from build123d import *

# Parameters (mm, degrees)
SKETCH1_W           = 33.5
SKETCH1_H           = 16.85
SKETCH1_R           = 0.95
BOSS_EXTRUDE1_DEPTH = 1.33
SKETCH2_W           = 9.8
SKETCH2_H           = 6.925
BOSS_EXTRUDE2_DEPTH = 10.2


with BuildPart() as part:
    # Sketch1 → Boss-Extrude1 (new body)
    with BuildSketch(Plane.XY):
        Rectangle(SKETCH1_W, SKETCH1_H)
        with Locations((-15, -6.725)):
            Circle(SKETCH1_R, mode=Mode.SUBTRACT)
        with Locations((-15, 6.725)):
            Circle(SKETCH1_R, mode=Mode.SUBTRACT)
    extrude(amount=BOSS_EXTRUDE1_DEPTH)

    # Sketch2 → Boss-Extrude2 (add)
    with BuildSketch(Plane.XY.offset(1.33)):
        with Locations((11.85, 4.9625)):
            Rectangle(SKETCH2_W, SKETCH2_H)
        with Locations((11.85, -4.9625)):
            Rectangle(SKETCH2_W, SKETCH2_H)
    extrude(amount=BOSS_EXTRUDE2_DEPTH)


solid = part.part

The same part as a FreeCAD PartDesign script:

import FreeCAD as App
import Part
import Sketcher

doc = App.newDocument("Part")
body = doc.addObject("PartDesign::Body", "Body")

sketch1 = body.newObject("Sketcher::SketchObject", "Sketch")
sketch1.AttachmentSupport = (doc.getObject("XY_Plane"), [""])
sketch1.MapMode = "FlatFace"
sketch1.addGeometry(Part.LineSegment(App.Vector(-16.75, 8.425, 0), App.Vector(-16.75, -8.425, 0)), False)
sketch1.addGeometry(Part.LineSegment(App.Vector(-16.75, -8.425, 0), App.Vector(16.75, -8.425, 0)), False)
sketch1.addGeometry(Part.LineSegment(App.Vector(16.75, -8.425, 0), App.Vector(16.75, 8.425, 0)), False)
sketch1.addGeometry(Part.LineSegment(App.Vector(16.75, 8.425, 0), App.Vector(-16.75, 8.425, 0)), False)
sketch1.addGeometry(Part.Circle(App.Vector(-15, -6.725, 0), App.Vector(0, 0, 1), 0.95), False)
sketch1.addGeometry(Part.Circle(App.Vector(-15, 6.725, 0), App.Vector(0, 0, 1), 0.95), False)
sketch1.addConstraint(Sketcher.Constraint("Coincident", 0, 2, 1, 1))
sketch1.addConstraint(Sketcher.Constraint("Coincident", 1, 2, 2, 1))
sketch1.addConstraint(Sketcher.Constraint("Coincident", 2, 2, 3, 1))
sketch1.addConstraint(Sketcher.Constraint("Coincident", 3, 2, 0, 1))
sketch1.addConstraint(Sketcher.Constraint("Vertical", 0))
sketch1.addConstraint(Sketcher.Constraint("Horizontal", 1))
sketch1.addConstraint(Sketcher.Constraint("Vertical", 2))
sketch1.addConstraint(Sketcher.Constraint("Horizontal", 3))
sketch1.addConstraint(Sketcher.Constraint("Equal", 4, 5))
sketch1.addConstraint(Sketcher.Constraint("Symmetric", 0, 2, 2, 2, -1, 1))
sketch1.addConstraint(Sketcher.Constraint("Symmetric", 4, 3, 5, 3, -1))
sketch1.addConstraint(Sketcher.Constraint("Diameter", 4, 1.9))
sketch1.addConstraint(Sketcher.Constraint("DistanceX", 1, 1, 1, 2, 33.5))
sketch1.addConstraint(Sketcher.Constraint("DistanceX", 4, 3, -1, 1, 15.0))
sketch1.addConstraint(Sketcher.Constraint("DistanceY", 0, 2, 0, 1, 16.85))
sketch1.addConstraint(Sketcher.Constraint("DistanceY", 0, 2, 4, 3, 1.7))
pad1 = body.newObject("PartDesign::Pad", "Pad")
pad1.Profile = sketch1
pad1.Length = 1.33

sketch2 = body.newObject("Sketcher::SketchObject", "Sketch001")
sketch2.AttachmentSupport = (doc.getObject("XY_Plane"), [""])
sketch2.MapMode = "FlatFace"
sketch2.AttachmentOffset = App.Placement(App.Vector(0, 0, 1.33), App.Rotation())
sketch2.addGeometry(Part.LineSegment(App.Vector(6.95, 8.425, 0), App.Vector(6.95, 1.5, 0)), False)
sketch2.addGeometry(Part.LineSegment(App.Vector(6.95, 1.5, 0), App.Vector(16.75, 1.5, 0)), False)
sketch2.addGeometry(Part.LineSegment(App.Vector(16.75, 1.5, 0), App.Vector(16.75, 8.425, 0)), False)
sketch2.addGeometry(Part.LineSegment(App.Vector(16.75, 8.425, 0), App.Vector(6.95, 8.425, 0)), False)
sketch2.addGeometry(Part.LineSegment(App.Vector(6.95, -1.5, 0), App.Vector(6.95, -8.425, 0)), False)
sketch2.addGeometry(Part.LineSegment(App.Vector(6.95, -8.425, 0), App.Vector(16.75, -8.425, 0)), False)
sketch2.addGeometry(Part.LineSegment(App.Vector(16.75, -8.425, 0), App.Vector(16.75, -1.5, 0)), False)
sketch2.addGeometry(Part.LineSegment(App.Vector(16.75, -1.5, 0), App.Vector(6.95, -1.5, 0)), False)
sketch2.addConstraint(Sketcher.Constraint("Coincident", 0, 2, 1, 1))
sketch2.addConstraint(Sketcher.Constraint("Coincident", 1, 2, 2, 1))
sketch2.addConstraint(Sketcher.Constraint("Coincident", 2, 2, 3, 1))
sketch2.addConstraint(Sketcher.Constraint("Coincident", 3, 2, 0, 1))
sketch2.addConstraint(Sketcher.Constraint("Coincident", 4, 2, 5, 1))
sketch2.addConstraint(Sketcher.Constraint("Coincident", 5, 2, 6, 1))
sketch2.addConstraint(Sketcher.Constraint("Coincident", 6, 2, 7, 1))
sketch2.addConstraint(Sketcher.Constraint("Coincident", 7, 2, 4, 1))
sketch2.addConstraint(Sketcher.Constraint("Vertical", 0))
sketch2.addConstraint(Sketcher.Constraint("Horizontal", 1))
sketch2.addConstraint(Sketcher.Constraint("Vertical", 2))
sketch2.addConstraint(Sketcher.Constraint("Horizontal", 3))
sketch2.addConstraint(Sketcher.Constraint("Vertical", 4))
sketch2.addConstraint(Sketcher.Constraint("Horizontal", 5))
sketch2.addConstraint(Sketcher.Constraint("Vertical", 6))
sketch2.addConstraint(Sketcher.Constraint("Horizontal", 7))
sketch2.addConstraint(Sketcher.Constraint("Symmetric", 3, 2, 4, 2, -1))
sketch2.addConstraint(Sketcher.Constraint("Symmetric", 1, 2, 6, 2, -1))
sketch2.addConstraint(Sketcher.Constraint("DistanceX", 1, 1, 1, 2, 9.8))
sketch2.addConstraint(Sketcher.Constraint("DistanceY", 6, 2, 1, 2, 3.0))
sketch2.addConstraint(Sketcher.Constraint("DistanceY", 0, 2, 0, 1, 6.925))
sketch2.addConstraint(Sketcher.Constraint("DistanceX", -1, 1, 0, 2, 6.95))
pad2 = body.newObject("PartDesign::Pad", "Pad001")
pad2.Profile = sketch2
pad2.Length = 10.2

doc.recompute()
